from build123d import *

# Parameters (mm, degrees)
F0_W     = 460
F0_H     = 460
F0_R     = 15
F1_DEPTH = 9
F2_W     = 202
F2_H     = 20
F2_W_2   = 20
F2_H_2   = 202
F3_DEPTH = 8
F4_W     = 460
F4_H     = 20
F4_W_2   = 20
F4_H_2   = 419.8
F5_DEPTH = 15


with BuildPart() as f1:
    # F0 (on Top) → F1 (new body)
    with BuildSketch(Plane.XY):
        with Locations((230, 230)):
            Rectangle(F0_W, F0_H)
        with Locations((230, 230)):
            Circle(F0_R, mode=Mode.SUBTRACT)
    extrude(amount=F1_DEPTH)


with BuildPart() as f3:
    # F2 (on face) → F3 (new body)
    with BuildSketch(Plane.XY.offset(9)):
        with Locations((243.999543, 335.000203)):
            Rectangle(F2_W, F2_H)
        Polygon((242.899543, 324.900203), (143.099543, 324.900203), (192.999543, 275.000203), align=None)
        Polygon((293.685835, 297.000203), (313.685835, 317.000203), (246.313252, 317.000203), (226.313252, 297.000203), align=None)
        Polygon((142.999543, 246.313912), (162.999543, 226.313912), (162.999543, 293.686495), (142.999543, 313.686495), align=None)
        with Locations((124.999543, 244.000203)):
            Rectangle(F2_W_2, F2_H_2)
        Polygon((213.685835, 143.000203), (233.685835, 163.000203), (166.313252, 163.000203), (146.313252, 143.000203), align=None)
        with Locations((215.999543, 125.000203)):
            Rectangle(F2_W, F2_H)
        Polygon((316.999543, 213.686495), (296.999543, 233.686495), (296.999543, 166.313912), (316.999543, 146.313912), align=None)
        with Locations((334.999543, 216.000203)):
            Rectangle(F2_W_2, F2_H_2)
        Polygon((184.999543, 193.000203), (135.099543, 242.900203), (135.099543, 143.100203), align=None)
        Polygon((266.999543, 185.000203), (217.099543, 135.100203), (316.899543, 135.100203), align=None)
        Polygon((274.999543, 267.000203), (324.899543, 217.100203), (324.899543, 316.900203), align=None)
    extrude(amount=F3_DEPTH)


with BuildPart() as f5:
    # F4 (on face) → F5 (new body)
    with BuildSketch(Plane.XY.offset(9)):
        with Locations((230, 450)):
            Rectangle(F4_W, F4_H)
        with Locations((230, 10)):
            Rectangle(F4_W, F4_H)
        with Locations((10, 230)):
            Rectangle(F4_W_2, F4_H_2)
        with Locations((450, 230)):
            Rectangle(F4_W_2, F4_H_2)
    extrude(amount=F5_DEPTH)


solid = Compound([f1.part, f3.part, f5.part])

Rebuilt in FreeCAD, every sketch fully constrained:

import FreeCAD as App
import Part
import Sketcher
Q = App.Units.Quantity


def add_polygon(sketch, points):
    """Adds a closed chain of lines whose ends are joined by coincident constraints."""
    first, n = sketch.GeometryCount, len(points)
    for a, b in zip(points, points[1:] + points[:1]):
        sketch.addGeometry(Part.LineSegment(App.Vector(*a, 0), App.Vector(*b, 0)), False)
    for i in range(n):
        sketch.addConstraint(Sketcher.Constraint("Coincident", first + i, 2, first + (i + 1) % n, 1))

doc = App.newDocument("Part")
body = doc.addObject("PartDesign::Body", "Body")

sketch1 = body.newObject("Sketcher::SketchObject", "Sketch")
sketch1.AttachmentSupport = (doc.getObject("XY_Plane"), [""])
sketch1.MapMode = "FlatFace"
add_polygon(sketch1, [(0, 460), (0, 0), (460, 0), (460, 460)])
sketch1.addGeometry(Part.Circle(App.Vector(230, 230, 0), App.Vector(0, 0, 1), 15), False)
sketch1.addConstraint([
    Sketcher.Constraint("Vertical", 0),
    Sketcher.Constraint("Horizontal", 1),
    Sketcher.Constraint("Vertical", 2),
    Sketcher.Constraint("Horizontal", 3),
    Sketcher.Constraint("Coincident", 0, 2, -1, 1),
    Sketcher.Constraint("Equal", 3, 0),
    Sketcher.Constraint("Diameter", 4, Q("30 mm")),
    Sketcher.Constraint("DistanceX", 1, 1, 1, 2, Q("460 mm")),
    Sketcher.Constraint("DistanceX", -1, 1, 4, 3, Q("230 mm")),
    Sketcher.Constraint("DistanceY", -1, 1, 4, 3, Q("230 mm")),
])
pad1 = body.newObject("PartDesign::Pad", "Pad")
pad1.Profile = sketch1
pad1.Length = 9
body2 = doc.addObject("PartDesign::Body", "Body001")
body2.AllowCompound = True

sketch2 = body2.newObject("Sketcher::SketchObject", "Sketch001")
sketch2.AttachmentSupport = (doc.getObject("XY_Plane001"), [""])
sketch2.MapMode = "FlatFace"
sketch2.AttachmentOffset = App.Placement(App.Vector(0, 0, 9), App.Rotation())
add_polygon(sketch2, [(142.999543, 345.000203), (142.999543, 325.000203), (344.999543, 325.000203), (344.999543, 345.000203)])
add_polygon(sketch2, [(242.899543, 324.900203), (143.099543, 324.900203), (192.999543, 275.000203)])
add_polygon(sketch2, [(293.685835, 297.000203), (313.685835, 317.000203), (246.313252, 317.000203), (226.313252, 297.000203)])
add_polygon(sketch2, [(142.999543, 246.313912), (162.999543, 226.313912), (162.999543, 293.686495), (142.999543, 313.686495)])
add_polygon(sketch2, [(114.999543, 345.000203), (114.999543, 143.000203), (134.999543, 143.000203), (134.999543, 345.000203)])
add_polygon(sketch2, [(213.685835, 143.000203), (233.685835, 163.000203), (166.313252, 163.000203), (146.313252, 143.000203)])
add_polygon(sketch2, [(114.999543, 135.000203), (114.999543, 115.000203), (316.999543, 115.000203), (316.999543, 135.000203)])
add_polygon(sketch2, [(316.999543, 213.686495), (296.999543, 233.686495), (296.999543, 166.313912), (316.999543, 146.313912)])
add_polygon(sketch2, [(324.999543, 317.000203), (324.999543, 115.000203), (344.999543, 115.000203), (344.999543, 317.000203)])
add_polygon(sketch2, [(184.999543, 193.000203), (135.099543, 242.900203), (135.099543, 143.100203)])
add_polygon(sketch2, [(266.999543, 185.000203), (217.099543, 135.100203), (316.899543, 135.100203)])
add_polygon(sketch2, [(274.999543, 267.000203), (324.899543, 217.100203), (324.899543, 316.900203)])
sketch2.addConstraint([
    Sketcher.Constraint("Vertical", 0),
    Sketcher.Constraint("Horizontal", 1),
    Sketcher.Constraint("Vertical", 2),
    Sketcher.Constraint("Horizontal", 3),
    Sketcher.Constraint("Horizontal", 4),
    Sketcher.Constraint("Horizontal", 8),
    Sketcher.Constraint("Horizontal", 10),
    Sketcher.Constraint("Vertical", 12),
    Sketcher.Constraint("Vertical", 14),
    Sketcher.Constraint("Vertical", 15),
    Sketcher.Constraint("Horizontal", 16),
    Sketcher.Constraint("Vertical", 17),
    Sketcher.Constraint("Horizontal", 18),
    Sketcher.Constraint("Horizontal", 20),
    Sketcher.Constraint("Horizontal", 22),
    Sketcher.Constraint("Vertical", 23),
    Sketcher.Constraint("Horizontal", 24),
    Sketcher.Constraint("Vertical", 25),
    Sketcher.Constraint("Horizontal", 26),
    Sketcher.Constraint("Vertical", 28),
    Sketcher.Constraint("Vertical", 30),
    Sketcher.Constraint("Vertical", 31),
    Sketcher.Constraint("Horizontal", 32),
    Sketcher.Constraint("Vertical", 33),
    Sketcher.Constraint("Horizontal", 34),
    Sketcher.Constraint("Vertical", 36),
    Sketcher.Constraint("Horizontal", 39),
    Sketcher.Constraint("Vertical", 42),
    Sketcher.Constraint("Perpendicular", 5, 6),
    Sketcher.Constraint("Parallel", 6, 7),
    Sketcher.Constraint("Parallel", 7, 9),
    Sketcher.Constraint("Perpendicular", 9, 11),
    Sketcher.Constraint("Parallel", 11, 13),
    Sketcher.Constraint("Perpendicular", 13, 19),
    Sketcher.Constraint("Parallel", 19, 21),
    Sketcher.Constraint("Perpendicular", 21, 27),
    Sketcher.Constraint("Parallel", 27, 29),
    Sketcher.Constraint("Parallel", 29, 35),
    Sketcher.Constraint("Perpendicular", 35, 37),
    Sketcher.Constraint("Parallel", 37, 38),
    Sketcher.Constraint("Perpendicular", 38, 40),
    Sketcher.Constraint("Parallel", 40, 41),
    Sketcher.Constraint("Perpendicular", 41, 43),
    Sketcher.Constraint("Horizontal", 3, 2, 17, 2),
    Sketcher.Constraint("Horizontal", 16, 2, 21, 2),
    Sketcher.Constraint("Horizontal", 24, 2, 31, 2),
    Sketcher.Constraint("Horizontal", 8, 2, 33, 2),
    Sketcher.Constraint("Vertical", 3, 2, 13, 2),
    Sketcher.Constraint("Vertical", 18, 2, 23, 2),
    Sketcher.Constraint("Vertical", 25, 2, 29, 2),
    Sketcher.Constraint("Vertical", 2, 2, 32, 2),
    Sketcher.Constraint("Equal", 10, 20),
    Sketcher.Constraint("Equal", 3, 24),
    Sketcher.Constraint("Equal", 18, 32),
    Sketcher.Constraint("Equal", 4, 39),
    Sketcher.Constraint("Equal", 34, 0),
    Sketcher.Constraint("Equal", 22, 12),
    Sketcher.Constraint("Equal", 26, 15),
    Sketcher.Constraint("Equal", 2, 23),
    Sketcher.Constraint("Equal", 14, 28),
    Sketcher.Constraint("Equal", 17, 31),
    Sketcher.Constraint("Equal", 39, 36),
    Sketcher.Constraint("Equal", 36, 42),
    Sketcher.Constraint("Equal", 5, 6),
    Sketcher.Constraint("Equal", 9, 11),
    Sketcher.Constraint("Equal", 13, 19),
    Sketcher.Constraint("Equal", 21, 27),
    Sketcher.Constraint("DistanceX", 1, 1, 1, 2, Q("202 mm")),
    Sketcher.Constraint("DistanceX", 16, 1, 16, 2, Q("20 mm")),
    Sketcher.Constraint("DistanceX", 4, 2, 4, 1, Q("99.8 mm")),
    Sketcher.Constraint("DistanceX", 0, 2, 5, 2, Q("50 mm")),
    Sketcher.Constraint("DistanceY", 5, 2, 0, 2, Q("50 mm")),
    Sketcher.Constraint("DistanceY", 7, 2, 1, 2, Q("8 mm")),
    Sketcher.Constraint("DistanceX", 9, 2, 8, 2, Q("20 mm")),
    Sketcher.Constraint("DistanceX", 15, 2, 11, 2, Q("48 mm")),
    Sketcher.Constraint("DistanceY", 20, 2, 37, 2, Q("30 mm")),
    Sketcher.Constraint("DistanceX", 11, 2, 37, 2, Q("22 mm")),
    Sketcher.Constraint("DistanceX", 40, 2, 28, 2, Q("30 mm")),
    Sketcher.Constraint("DistanceY", 19, 2, 40, 2, Q("22 mm")),
    Sketcher.Constraint("DistanceY", 43, 2, 10, 2, Q("30 mm")),
    Sketcher.Constraint("DistanceX", 43, 2, 27, 2, Q("22 mm")),
    Sketcher.Constraint("DistanceX", 8, 2, 8, 1, Q("67.372583 mm")),
    Sketcher.Constraint("DistanceX", -1, 1, 8, 2, Q("246.313252 mm")),
    Sketcher.Constraint("DistanceY", -1, 1, 11, 2, Q("226.313912 mm")),
    Sketcher.Constraint("DistanceX", -1, 1, 20, 2, Q("166.313252 mm")),
    Sketcher.Constraint("DistanceY", -1, 1, 28, 2, Q("166.313912 mm")),
    Sketcher.Constraint("DistanceX", 7, 2, 1, 2, Q("31.313708 mm")),
    Sketcher.Constraint("DistanceY", 11, 2, 5, 2, Q("48.686291 mm")),
])
pad2 = body2.newObject("PartDesign::Pad", "Pad001")
pad2.Profile = sketch2
pad2.Length = 8
body3 = doc.addObject("PartDesign::Body", "Body002")
body3.AllowCompound = True

sketch3 = body3.newObject("Sketcher::SketchObject", "Sketch002")
sketch3.AttachmentSupport = (doc.getObject("XY_Plane002"), [""])
sketch3.MapMode = "FlatFace"
sketch3.AttachmentOffset = App.Placement(App.Vector(0, 0, 9), App.Rotation())
add_polygon(sketch3, [(0, 460), (0, 440), (460, 440), (460, 460)])
add_polygon(sketch3, [(0, 20), (0, 0), (460, 0), (460, 20)])
add_polygon(sketch3, [(0, 439.9), (0, 20.1), (20, 20.1), (20, 439.9)])
add_polygon(sketch3, [(440, 439.9), (440, 20.1), (460, 20.1), (460, 439.9)])
sketch3.addConstraint([
    Sketcher.Constraint("Vertical", 0),
    Sketcher.Constraint("Horizontal", 1),
    Sketcher.Constraint("Vertical", 2),
    Sketcher.Constraint("Horizontal", 3),
    Sketcher.Constraint("Vertical", 4),
    Sketcher.Constraint("Horizontal", 5),
    Sketcher.Constraint("Vertical", 6),
    Sketcher.Constraint("Horizontal", 7),
    Sketcher.Constraint("Vertical", 8),
    Sketcher.Constraint("Horizontal", 9),
    Sketcher.Constraint("Vertical", 10),
    Sketcher.Constraint("Horizontal", 11),
    Sketcher.Constraint("Vertical", 12),
    Sketcher.Constraint("Horizontal", 13),
    Sketcher.Constraint("Vertical", 14),
    Sketcher.Constraint("Horizontal", 15),
    Sketcher.Constraint("Coincident", 4, 2, -1, 1),
    Sketcher.Constraint("PointOnObject", 0, 2, -2),
    Sketcher.Constraint("PointOnObject", 8, 2, -2),
    Sketcher.Constraint("Horizontal", 9, 2, 12, 2),
    Sketcher.Constraint("Horizontal", 11, 2, 14, 2),
    Sketcher.Constraint("Vertical", 2, 2, 5, 2),
    Sketcher.Constraint("Vertical", 6, 2, 13, 2),
    Sketcher.Constraint("Equal", 11, 13),
    Sketcher.Constraint("Equal", 15, 0),
    Sketcher.Constraint("Equal", 2, 4),
    Sketcher.Constraint("DistanceX", 1, 1, 1, 2, Q("460 mm")),
    Sketcher.Constraint("DistanceX", 9, 1, 9, 2, Q("20 mm")),
    Sketcher.Constraint("DistanceY", 8, 2, 8, 1, Q("419.8 mm")),
    Sketcher.Constraint("DistanceY", -1, 1, 0, 2, Q("440 mm")),
    Sketcher.Constraint("DistanceY", -1, 1, 8, 2, Q("20.1 mm")),
])
pad3 = body3.newObject("PartDesign::Pad", "Pad002")
pad3.Profile = sketch3
pad3.Length = 15

doc.recompute()
